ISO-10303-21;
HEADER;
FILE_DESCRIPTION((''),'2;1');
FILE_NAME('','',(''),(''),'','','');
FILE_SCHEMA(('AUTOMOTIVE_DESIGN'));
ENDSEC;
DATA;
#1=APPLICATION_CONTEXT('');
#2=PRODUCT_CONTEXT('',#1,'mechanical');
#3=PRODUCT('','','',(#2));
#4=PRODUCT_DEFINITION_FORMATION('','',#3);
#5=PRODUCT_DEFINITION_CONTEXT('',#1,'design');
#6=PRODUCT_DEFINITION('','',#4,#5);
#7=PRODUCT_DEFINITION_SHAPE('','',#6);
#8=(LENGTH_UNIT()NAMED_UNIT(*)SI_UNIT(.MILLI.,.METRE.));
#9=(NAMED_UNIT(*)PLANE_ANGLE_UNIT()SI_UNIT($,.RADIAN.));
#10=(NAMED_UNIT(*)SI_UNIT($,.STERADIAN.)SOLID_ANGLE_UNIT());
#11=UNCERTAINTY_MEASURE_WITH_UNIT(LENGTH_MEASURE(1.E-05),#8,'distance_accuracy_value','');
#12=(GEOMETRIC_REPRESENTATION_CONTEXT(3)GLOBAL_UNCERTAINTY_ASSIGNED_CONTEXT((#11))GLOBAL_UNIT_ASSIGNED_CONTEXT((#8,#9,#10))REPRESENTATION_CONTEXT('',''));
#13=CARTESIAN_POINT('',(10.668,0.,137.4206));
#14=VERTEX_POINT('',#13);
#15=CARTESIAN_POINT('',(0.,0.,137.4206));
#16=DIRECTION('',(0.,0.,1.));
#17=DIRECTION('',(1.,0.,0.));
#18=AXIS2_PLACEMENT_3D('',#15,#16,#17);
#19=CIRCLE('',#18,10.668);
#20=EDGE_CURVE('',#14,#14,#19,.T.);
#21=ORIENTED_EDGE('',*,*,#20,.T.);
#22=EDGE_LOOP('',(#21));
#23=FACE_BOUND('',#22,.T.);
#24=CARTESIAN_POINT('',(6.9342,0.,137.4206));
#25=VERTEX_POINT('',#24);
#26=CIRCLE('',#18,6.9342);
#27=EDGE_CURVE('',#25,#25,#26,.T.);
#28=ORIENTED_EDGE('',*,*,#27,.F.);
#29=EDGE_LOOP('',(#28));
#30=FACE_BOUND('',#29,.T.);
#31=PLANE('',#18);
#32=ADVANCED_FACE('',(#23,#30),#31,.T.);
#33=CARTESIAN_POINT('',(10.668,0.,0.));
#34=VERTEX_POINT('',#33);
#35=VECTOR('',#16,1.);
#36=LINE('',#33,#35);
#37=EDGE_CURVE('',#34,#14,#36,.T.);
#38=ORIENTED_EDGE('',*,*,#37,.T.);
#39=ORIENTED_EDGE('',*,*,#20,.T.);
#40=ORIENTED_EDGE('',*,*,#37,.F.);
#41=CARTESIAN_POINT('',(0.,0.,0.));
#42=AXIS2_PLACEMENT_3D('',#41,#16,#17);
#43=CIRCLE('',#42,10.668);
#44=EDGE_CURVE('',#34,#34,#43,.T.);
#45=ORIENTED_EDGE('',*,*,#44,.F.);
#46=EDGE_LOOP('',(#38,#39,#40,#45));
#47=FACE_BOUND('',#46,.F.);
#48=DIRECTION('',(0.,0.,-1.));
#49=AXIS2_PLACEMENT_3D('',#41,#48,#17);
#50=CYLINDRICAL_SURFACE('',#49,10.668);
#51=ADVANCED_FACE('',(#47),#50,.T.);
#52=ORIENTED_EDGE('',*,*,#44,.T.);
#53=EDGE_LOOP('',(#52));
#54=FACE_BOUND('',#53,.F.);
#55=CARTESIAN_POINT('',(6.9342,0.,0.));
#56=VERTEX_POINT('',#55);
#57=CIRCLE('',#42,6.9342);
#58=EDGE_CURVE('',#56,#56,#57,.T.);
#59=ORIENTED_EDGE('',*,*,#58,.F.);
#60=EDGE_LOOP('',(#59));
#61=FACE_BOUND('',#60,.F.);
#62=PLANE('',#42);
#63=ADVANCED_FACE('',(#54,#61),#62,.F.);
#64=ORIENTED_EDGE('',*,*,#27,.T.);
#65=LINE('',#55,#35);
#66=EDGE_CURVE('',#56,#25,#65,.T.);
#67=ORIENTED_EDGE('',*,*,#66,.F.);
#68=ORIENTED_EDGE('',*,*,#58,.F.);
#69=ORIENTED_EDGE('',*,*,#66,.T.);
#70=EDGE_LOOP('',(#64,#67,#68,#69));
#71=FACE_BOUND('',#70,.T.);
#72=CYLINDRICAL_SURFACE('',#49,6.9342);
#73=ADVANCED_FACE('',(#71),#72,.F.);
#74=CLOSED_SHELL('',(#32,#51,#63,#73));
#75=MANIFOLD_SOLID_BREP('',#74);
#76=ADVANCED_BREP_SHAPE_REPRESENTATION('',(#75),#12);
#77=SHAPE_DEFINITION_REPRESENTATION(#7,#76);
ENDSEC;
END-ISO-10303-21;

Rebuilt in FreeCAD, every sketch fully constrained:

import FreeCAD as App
import Part
import Sketcher
Q = App.Units.Quantity

doc = App.newDocument("Part")
body = doc.addObject("PartDesign::Body", "Body")

# Sketch on XY plane
sketch1 = body.newObject("Sketcher::SketchObject", "Sketch")
sketch1.AttachmentSupport = (doc.getObject("XY_Plane"), [""])
sketch1.MapMode = "FlatFace"
sketch1.addGeometry([
    Part.Circle(App.Vector(0, 0, 0), App.Vector(0, 0, 1), 11),
    Part.Circle(App.Vector(0, 0, 0), App.Vector(0, 0, 1), 7),
], False)
sketch1.addConstraint([
    Sketcher.Constraint("Coincident", 0, 3, -1, 1),
    Sketcher.Constraint("Coincident", 1, 3, -1, 1),
    Sketcher.Constraint("Diameter", 0, Q("0.84 in")),
    Sketcher.Constraint("Diameter", 1, Q("0.546 in")),
])
pad1 = body.newObject("PartDesign::Pad", "Pad")
pad1.Profile = sketch1
pad1.Length = 137.4206

doc.recompute()
